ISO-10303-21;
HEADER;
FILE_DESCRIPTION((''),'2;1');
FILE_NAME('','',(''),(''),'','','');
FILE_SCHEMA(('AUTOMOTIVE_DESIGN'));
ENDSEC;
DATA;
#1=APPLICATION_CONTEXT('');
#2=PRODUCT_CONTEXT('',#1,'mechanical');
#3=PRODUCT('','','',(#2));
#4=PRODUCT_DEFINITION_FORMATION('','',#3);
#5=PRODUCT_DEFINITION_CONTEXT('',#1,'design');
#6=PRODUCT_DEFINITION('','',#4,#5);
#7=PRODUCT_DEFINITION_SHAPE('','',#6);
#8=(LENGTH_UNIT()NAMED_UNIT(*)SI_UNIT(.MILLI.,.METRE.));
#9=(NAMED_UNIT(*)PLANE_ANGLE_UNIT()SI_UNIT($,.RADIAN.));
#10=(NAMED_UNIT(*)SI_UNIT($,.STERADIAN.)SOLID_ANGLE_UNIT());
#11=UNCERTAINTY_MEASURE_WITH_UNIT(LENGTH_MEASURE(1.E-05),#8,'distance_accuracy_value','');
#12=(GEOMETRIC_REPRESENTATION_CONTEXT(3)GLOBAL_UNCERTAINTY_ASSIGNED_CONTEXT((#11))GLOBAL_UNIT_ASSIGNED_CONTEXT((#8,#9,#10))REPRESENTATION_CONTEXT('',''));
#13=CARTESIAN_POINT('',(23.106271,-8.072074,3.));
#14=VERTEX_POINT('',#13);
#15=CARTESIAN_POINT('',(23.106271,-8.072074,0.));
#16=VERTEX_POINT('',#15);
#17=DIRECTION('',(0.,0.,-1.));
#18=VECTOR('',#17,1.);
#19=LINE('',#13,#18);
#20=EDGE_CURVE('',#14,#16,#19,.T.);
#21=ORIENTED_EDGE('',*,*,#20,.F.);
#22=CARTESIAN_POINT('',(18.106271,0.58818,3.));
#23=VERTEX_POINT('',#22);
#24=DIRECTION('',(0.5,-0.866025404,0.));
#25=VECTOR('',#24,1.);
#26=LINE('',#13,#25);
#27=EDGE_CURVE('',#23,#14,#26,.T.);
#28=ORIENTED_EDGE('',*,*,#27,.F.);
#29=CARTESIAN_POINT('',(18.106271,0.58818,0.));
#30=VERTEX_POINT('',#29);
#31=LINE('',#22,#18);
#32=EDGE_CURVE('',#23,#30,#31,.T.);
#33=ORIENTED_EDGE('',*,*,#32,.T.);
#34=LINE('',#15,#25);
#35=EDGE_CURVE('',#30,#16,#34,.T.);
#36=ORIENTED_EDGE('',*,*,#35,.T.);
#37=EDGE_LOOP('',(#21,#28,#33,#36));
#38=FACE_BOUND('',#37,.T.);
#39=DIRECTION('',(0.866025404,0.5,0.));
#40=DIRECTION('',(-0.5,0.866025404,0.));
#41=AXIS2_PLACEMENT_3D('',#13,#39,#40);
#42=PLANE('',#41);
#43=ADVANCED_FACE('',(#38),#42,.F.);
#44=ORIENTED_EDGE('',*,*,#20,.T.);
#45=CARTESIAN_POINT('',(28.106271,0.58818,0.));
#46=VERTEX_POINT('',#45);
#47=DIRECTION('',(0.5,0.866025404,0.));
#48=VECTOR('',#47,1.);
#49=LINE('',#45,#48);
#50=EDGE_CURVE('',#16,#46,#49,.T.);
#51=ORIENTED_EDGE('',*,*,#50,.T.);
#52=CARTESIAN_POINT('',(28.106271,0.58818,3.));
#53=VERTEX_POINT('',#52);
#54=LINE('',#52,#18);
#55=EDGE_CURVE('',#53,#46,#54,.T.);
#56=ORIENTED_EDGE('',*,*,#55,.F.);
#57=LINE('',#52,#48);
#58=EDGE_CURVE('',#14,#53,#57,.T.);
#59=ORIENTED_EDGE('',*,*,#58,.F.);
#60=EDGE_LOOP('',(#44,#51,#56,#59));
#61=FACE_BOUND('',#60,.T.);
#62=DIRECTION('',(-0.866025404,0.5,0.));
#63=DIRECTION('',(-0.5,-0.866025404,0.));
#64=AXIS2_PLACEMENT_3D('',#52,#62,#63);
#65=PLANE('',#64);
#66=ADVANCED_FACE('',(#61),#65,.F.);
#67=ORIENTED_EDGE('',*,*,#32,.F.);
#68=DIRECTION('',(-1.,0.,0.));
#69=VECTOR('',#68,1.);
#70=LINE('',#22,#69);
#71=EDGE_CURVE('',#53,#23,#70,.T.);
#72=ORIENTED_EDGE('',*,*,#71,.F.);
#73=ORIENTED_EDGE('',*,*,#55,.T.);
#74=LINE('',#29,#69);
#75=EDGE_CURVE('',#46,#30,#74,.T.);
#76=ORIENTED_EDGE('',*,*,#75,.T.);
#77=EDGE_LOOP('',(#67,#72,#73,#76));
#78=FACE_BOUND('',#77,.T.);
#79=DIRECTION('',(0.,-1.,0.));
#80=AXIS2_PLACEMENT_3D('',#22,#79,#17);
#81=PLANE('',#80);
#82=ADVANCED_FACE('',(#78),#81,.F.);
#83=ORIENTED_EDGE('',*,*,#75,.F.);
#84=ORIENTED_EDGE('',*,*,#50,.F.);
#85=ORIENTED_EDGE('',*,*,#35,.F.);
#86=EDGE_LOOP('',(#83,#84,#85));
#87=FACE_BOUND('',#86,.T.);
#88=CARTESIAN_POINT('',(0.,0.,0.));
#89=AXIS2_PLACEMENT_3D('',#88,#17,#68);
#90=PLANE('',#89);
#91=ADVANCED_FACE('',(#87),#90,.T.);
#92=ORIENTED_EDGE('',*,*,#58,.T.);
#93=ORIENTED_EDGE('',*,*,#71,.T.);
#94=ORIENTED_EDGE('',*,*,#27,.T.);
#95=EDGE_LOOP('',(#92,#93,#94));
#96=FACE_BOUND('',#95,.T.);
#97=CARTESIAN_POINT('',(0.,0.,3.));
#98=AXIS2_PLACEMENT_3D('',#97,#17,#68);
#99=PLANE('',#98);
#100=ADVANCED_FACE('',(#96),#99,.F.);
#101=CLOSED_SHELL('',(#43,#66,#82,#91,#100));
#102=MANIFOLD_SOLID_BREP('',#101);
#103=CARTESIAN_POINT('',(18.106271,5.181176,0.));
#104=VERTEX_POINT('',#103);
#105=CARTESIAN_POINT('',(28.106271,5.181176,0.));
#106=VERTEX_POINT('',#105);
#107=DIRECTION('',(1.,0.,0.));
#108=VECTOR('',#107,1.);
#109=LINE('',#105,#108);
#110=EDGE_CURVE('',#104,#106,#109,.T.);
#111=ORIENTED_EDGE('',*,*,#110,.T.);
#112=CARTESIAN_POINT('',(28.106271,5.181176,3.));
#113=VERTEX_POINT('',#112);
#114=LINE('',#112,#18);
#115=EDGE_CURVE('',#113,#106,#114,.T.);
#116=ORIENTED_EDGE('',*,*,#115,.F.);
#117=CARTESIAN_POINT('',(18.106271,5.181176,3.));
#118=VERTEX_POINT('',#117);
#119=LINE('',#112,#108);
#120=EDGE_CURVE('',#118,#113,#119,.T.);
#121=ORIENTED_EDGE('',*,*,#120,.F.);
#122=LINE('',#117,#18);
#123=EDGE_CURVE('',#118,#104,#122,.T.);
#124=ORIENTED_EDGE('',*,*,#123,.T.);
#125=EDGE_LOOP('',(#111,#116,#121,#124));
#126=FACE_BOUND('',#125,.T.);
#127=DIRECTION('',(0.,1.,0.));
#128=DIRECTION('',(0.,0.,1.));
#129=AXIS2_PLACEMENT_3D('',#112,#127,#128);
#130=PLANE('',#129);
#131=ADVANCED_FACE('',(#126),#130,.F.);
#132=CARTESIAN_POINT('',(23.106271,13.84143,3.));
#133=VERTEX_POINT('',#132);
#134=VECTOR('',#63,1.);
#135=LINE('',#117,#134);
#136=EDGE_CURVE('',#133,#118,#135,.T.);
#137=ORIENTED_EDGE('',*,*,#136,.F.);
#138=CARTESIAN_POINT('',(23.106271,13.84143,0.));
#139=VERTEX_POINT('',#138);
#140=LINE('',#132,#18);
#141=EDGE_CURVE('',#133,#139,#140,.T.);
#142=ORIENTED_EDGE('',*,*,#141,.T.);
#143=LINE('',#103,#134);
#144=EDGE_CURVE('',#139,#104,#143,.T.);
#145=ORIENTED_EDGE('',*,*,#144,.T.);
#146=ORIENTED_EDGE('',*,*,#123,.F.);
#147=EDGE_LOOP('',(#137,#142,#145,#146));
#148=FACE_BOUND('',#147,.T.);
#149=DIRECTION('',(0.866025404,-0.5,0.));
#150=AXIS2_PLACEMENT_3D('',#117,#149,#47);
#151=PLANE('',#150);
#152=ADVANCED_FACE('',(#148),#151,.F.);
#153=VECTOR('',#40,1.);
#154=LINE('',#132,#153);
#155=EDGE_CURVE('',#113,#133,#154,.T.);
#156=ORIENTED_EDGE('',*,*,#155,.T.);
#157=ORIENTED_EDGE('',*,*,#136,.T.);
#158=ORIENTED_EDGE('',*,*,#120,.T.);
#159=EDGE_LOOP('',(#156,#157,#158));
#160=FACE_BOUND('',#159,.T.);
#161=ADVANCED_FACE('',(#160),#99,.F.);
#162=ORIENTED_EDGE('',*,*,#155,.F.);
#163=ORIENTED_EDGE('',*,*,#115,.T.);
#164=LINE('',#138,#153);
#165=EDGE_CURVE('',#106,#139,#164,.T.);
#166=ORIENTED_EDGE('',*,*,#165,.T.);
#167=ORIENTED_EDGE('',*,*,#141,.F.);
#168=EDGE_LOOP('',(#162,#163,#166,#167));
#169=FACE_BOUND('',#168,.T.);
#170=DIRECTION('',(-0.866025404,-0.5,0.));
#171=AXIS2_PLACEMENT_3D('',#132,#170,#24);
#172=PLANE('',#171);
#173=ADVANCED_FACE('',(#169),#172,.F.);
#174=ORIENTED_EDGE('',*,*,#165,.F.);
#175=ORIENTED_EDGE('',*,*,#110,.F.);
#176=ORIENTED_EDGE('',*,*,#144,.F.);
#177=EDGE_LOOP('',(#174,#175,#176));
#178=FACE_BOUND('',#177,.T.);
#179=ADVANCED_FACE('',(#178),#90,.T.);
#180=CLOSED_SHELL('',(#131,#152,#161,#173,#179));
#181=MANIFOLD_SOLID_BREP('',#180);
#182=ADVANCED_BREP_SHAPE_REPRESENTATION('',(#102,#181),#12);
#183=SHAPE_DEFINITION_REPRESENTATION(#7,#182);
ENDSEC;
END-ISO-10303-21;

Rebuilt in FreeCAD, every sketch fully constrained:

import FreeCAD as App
import Part
import Sketcher
Q = App.Units.Quantity


def add_polygon(sketch, points):
    """Adds a closed chain of lines whose ends are joined by coincident constraints."""
    first, n = sketch.GeometryCount, len(points)
    for a, b in zip(points, points[1:] + points[:1]):
        sketch.addGeometry(Part.LineSegment(App.Vector(*a, 0), App.Vector(*b, 0)), False)
    for i in range(n):
        sketch.addConstraint(Sketcher.Constraint("Coincident", first + i, 2, first + (i + 1) % n, 1))

doc = App.newDocument("Part")
body = doc.addObject("PartDesign::Body", "Body")

sketch1 = body.newObject("Sketcher::SketchObject", "Sketch")
sketch1.AttachmentSupport = (doc.getObject("XY_Plane"), [""])
sketch1.MapMode = "FlatFace"
add_polygon(sketch1, [(23, 14), (18, 5), (28, 5)])
sketch1.addConstraint(Sketcher.Constraint("Horizontal", 1))
sketch1.addConstraint(Sketcher.Constraint("Equal", 0, 2))
sketch1.addConstraint(Sketcher.Constraint("DistanceX", 1, 1, 1, 2, Q("10 mm")))
sketch1.addConstraint(Sketcher.Constraint("Angle", 0, Q("-120 deg")))
sketch1.addConstraint(Sketcher.Constraint("DistanceX", -1, 1, 0, 2, Q("18.106271 mm")))
sketch1.addConstraint(Sketcher.Constraint("DistanceY", -1, 1, 2, 2, Q("13.84143 mm")))
pad1 = body.newObject("PartDesign::Pad", "Pad")
pad1.Profile = sketch1
pad1.Length = 3
body2 = doc.addObject("PartDesign::Body", "Body001")

sketch2 = body2.newObject("Sketcher::SketchObject", "Sketch001")
sketch2.AttachmentSupport = (doc.getObject("XY_Plane001"), [""])
sketch2.MapMode = "FlatFace"
add_polygon(sketch2, [(28, 1), (18, 1), (23, -8)])
sketch2.addConstraint(Sketcher.Constraint("Horizontal", 0))
sketch2.addConstraint(Sketcher.Constraint("Equal", 1, 2))
sketch2.addConstraint(Sketcher.Constraint("DistanceX", 0, 2, 0, 1, Q("10 mm")))
sketch2.addConstraint(Sketcher.Constraint("Angle", 1, Q("-60 deg")))
sketch2.addConstraint(Sketcher.Constraint("DistanceX", -1, 1, 0, 2, Q("18.106271 mm")))
sketch2.addConstraint(Sketcher.Constraint("DistanceY", -1, 1, 0, 2, Q("0.58818 mm")))
pad2 = body2.newObject("PartDesign::Pad", "Pad001")
pad2.Profile = sketch2
pad2.Length = 3

doc.recompute()
